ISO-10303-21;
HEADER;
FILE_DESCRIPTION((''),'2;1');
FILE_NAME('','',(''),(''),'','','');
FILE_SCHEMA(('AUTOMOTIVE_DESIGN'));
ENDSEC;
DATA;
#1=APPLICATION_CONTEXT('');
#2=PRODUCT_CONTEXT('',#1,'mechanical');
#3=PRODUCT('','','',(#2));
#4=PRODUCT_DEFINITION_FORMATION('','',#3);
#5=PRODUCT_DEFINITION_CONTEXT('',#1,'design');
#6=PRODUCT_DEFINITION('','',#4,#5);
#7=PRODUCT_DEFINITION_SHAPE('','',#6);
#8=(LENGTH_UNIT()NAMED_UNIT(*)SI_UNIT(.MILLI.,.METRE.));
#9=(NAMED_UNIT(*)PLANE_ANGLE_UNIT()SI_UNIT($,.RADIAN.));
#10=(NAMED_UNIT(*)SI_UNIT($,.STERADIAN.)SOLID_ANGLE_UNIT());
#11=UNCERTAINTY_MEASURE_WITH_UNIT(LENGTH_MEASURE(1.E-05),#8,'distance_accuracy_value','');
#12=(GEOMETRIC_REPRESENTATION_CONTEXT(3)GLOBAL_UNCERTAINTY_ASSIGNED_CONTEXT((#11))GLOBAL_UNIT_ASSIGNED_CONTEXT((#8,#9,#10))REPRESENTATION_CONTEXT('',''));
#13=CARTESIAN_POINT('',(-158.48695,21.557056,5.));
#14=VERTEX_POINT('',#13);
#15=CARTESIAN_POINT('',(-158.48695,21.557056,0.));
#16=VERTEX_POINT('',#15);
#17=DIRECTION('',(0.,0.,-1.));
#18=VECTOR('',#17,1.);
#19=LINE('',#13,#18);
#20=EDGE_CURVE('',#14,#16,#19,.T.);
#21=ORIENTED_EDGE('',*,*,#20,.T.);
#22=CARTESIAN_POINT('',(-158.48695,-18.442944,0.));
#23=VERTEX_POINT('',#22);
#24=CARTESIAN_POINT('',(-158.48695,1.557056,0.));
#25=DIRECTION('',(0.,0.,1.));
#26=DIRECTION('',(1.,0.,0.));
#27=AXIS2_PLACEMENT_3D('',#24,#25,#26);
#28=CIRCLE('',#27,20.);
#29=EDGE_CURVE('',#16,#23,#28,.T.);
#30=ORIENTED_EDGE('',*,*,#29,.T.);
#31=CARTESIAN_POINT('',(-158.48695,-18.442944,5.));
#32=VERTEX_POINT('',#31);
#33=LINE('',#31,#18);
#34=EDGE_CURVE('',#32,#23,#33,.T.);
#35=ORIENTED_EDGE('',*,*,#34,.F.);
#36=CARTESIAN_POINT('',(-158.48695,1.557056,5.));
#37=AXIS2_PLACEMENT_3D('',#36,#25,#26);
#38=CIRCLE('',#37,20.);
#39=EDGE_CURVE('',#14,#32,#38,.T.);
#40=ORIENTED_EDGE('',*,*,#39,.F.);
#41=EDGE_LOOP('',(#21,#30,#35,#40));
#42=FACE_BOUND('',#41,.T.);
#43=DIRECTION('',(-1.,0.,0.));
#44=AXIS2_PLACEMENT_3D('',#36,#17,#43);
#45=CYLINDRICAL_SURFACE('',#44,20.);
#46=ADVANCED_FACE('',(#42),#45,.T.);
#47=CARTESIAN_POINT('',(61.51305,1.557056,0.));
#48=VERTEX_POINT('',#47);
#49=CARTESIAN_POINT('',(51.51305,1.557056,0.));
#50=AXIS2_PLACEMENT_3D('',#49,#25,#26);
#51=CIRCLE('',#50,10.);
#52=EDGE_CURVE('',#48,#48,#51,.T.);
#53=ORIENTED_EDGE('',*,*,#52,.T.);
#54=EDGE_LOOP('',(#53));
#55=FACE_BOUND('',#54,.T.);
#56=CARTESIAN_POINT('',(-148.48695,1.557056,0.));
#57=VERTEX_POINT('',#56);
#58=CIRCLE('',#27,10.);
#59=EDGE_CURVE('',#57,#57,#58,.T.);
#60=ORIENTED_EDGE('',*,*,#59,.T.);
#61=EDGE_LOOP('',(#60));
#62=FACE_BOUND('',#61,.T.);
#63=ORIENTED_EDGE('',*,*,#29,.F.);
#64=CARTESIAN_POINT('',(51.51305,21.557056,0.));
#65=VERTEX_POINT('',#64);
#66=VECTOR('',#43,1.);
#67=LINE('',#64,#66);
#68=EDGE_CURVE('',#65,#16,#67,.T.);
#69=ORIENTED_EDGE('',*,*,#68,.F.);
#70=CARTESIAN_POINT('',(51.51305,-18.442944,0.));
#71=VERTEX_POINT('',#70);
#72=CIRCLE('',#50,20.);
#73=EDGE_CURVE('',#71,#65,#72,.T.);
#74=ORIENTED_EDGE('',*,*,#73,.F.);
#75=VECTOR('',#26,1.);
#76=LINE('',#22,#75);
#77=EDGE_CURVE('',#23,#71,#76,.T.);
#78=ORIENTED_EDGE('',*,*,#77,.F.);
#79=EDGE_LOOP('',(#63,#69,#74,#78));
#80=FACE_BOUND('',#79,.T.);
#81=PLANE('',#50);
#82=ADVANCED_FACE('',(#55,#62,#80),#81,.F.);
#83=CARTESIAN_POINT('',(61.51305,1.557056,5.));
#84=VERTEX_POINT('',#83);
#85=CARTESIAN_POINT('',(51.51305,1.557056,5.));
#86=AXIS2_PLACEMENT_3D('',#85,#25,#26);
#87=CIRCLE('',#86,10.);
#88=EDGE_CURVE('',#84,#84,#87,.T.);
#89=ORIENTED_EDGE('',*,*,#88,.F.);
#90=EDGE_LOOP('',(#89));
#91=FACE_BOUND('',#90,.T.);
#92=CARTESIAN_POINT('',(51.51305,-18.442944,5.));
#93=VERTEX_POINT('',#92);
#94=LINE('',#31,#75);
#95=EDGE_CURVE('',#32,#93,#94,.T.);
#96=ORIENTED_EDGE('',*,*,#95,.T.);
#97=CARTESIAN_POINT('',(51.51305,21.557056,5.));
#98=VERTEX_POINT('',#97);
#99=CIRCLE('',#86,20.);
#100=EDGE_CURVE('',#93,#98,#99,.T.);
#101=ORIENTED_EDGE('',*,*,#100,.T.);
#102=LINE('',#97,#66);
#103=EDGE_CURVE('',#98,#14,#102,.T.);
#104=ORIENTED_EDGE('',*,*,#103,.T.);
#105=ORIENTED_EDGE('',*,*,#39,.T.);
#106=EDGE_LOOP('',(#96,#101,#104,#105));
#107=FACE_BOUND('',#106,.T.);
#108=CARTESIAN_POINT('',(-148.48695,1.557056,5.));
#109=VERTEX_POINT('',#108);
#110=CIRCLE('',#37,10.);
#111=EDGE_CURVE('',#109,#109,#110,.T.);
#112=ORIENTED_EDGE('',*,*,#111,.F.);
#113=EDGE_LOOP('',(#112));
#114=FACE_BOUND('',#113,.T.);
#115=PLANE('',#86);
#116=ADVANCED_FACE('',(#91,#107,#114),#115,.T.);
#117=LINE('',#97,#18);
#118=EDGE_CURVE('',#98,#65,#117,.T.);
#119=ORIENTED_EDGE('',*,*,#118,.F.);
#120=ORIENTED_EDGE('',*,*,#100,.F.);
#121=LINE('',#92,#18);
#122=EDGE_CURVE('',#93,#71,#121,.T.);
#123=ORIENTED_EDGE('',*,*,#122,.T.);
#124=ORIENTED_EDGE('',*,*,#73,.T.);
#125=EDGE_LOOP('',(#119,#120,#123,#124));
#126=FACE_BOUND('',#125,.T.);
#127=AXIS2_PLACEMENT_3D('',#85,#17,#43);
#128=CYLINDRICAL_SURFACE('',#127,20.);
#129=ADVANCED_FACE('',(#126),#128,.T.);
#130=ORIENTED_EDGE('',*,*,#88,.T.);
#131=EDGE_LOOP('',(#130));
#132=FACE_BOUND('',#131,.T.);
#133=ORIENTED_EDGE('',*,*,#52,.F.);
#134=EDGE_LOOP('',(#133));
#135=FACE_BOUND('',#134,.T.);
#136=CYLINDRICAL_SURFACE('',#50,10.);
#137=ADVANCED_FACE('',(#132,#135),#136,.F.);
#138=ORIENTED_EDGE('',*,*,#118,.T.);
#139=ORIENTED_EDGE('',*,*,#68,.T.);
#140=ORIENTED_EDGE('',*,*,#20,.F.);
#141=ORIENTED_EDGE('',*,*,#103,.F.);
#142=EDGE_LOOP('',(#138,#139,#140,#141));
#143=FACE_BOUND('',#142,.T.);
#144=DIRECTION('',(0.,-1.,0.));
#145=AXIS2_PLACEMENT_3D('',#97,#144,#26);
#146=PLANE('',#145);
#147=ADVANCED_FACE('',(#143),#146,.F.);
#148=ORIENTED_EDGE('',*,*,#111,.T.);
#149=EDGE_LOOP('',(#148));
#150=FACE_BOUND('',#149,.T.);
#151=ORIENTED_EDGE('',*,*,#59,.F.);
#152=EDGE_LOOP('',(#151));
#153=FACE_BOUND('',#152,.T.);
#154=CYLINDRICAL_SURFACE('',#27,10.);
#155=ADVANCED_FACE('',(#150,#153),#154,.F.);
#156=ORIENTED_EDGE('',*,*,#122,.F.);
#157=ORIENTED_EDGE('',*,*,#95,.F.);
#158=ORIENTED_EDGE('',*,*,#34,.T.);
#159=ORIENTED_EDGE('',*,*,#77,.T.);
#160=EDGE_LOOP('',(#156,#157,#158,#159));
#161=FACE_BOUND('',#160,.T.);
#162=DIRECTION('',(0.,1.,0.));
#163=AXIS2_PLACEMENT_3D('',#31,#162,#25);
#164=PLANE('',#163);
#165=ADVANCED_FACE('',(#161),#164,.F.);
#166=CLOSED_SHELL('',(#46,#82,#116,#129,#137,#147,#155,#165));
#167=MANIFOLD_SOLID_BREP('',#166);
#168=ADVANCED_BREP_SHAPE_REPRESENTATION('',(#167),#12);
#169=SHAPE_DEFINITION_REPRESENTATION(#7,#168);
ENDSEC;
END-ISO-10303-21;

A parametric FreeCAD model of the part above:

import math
import FreeCAD as App
import Part
import Sketcher
Q = App.Units.Quantity

doc = App.newDocument("Part")
body = doc.addObject("PartDesign::Body", "Body")

# Sketch on XY plane
sketch1 = body.newObject("Sketcher::SketchObject", "Sketch")
sketch1.AttachmentSupport = (doc.getObject("XY_Plane"), [""])
sketch1.MapMode = "FlatFace"
sketch1.addGeometry(Part.LineSegment(App.Vector(52, 22, 0), App.Vector(-158, 22, 0)), False)
sketch1.addGeometry(Part.ArcOfCircle(Part.Circle(App.Vector(-158, 2, 0), App.Vector(0, 0, 1), 20), math.radians(90), math.radians(270)), False)
sketch1.addGeometry(Part.LineSegment(App.Vector(-158, -18, 0), App.Vector(52, -18, 0)), False)
sketch1.addGeometry(Part.ArcOfCircle(Part.Circle(App.Vector(52, 2, 0), App.Vector(0, 0, 1), 20), math.radians(-90), math.radians(90)), False)
sketch1.addConstraint(Sketcher.Constraint("Tangent", 0, 2, 1, 1))
sketch1.addConstraint(Sketcher.Constraint("Tangent", 1, 2, 2, 1))
sketch1.addConstraint(Sketcher.Constraint("Tangent", 2, 2, 3, 1))
sketch1.addConstraint(Sketcher.Constraint("Tangent", 3, 2, 0, 1))
sketch1.addConstraint(Sketcher.Constraint("Horizontal", 0))
sketch1.addConstraint(Sketcher.Constraint("Horizontal", 2))
sketch1.addConstraint(Sketcher.Constraint("Radius", 1, Q("20 mm")))
sketch1.addConstraint(Sketcher.Constraint("DistanceX", 0, 2, 0, 1, Q("210 mm")))
sketch1.addConstraint(Sketcher.Constraint("DistanceX", 1, 3, -1, 1, Q("158.48695 mm")))
sketch1.addConstraint(Sketcher.Constraint("DistanceY", -1, 1, 1, 3, Q("1.557056 mm")))
pad1 = body.newObject("PartDesign::Pad", "Pad")
pad1.Profile = sketch1
pad1.Length = 5

# Sketch on XY plane
sketch2 = body.newObject("Sketcher::SketchObject", "Sketch001")
sketch2.AttachmentSupport = (doc.getObject("XY_Plane"), [""])
sketch2.MapMode = "FlatFace"
sketch2.AttachmentOffset = App.Placement(App.Vector(0, 0, 5), App.Rotation())
sketch2.addGeometry(Part.Circle(App.Vector(-158, 2, 0), App.Vector(0, 0, 1), 10), False)
sketch2.addGeometry(Part.Circle(App.Vector(52, 2, 0), App.Vector(0, 0, 1), 10), False)
sketch2.addConstraint(Sketcher.Constraint("Equal", 0, 1))
sketch2.addConstraint(Sketcher.Constraint("Horizontal", 0, 3, 1, 3))
sketch2.addConstraint(Sketcher.Constraint("Diameter", 0, Q("20 mm")))
sketch2.addConstraint(Sketcher.Constraint("DistanceX", 0, 3, 1, 3, Q("210 mm")))
sketch2.addConstraint(Sketcher.Constraint("DistanceX", 0, 3, -1, 1, Q("158.48695 mm")))
sketch2.addConstraint(Sketcher.Constraint("DistanceY", -1, 1, 0, 3, Q("1.557056 mm")))
pocket1 = body.newObject("PartDesign::Pocket", "Pocket")
pocket1.Profile = sketch2
pocket1.Type = "ThroughAll"

doc.recompute()
